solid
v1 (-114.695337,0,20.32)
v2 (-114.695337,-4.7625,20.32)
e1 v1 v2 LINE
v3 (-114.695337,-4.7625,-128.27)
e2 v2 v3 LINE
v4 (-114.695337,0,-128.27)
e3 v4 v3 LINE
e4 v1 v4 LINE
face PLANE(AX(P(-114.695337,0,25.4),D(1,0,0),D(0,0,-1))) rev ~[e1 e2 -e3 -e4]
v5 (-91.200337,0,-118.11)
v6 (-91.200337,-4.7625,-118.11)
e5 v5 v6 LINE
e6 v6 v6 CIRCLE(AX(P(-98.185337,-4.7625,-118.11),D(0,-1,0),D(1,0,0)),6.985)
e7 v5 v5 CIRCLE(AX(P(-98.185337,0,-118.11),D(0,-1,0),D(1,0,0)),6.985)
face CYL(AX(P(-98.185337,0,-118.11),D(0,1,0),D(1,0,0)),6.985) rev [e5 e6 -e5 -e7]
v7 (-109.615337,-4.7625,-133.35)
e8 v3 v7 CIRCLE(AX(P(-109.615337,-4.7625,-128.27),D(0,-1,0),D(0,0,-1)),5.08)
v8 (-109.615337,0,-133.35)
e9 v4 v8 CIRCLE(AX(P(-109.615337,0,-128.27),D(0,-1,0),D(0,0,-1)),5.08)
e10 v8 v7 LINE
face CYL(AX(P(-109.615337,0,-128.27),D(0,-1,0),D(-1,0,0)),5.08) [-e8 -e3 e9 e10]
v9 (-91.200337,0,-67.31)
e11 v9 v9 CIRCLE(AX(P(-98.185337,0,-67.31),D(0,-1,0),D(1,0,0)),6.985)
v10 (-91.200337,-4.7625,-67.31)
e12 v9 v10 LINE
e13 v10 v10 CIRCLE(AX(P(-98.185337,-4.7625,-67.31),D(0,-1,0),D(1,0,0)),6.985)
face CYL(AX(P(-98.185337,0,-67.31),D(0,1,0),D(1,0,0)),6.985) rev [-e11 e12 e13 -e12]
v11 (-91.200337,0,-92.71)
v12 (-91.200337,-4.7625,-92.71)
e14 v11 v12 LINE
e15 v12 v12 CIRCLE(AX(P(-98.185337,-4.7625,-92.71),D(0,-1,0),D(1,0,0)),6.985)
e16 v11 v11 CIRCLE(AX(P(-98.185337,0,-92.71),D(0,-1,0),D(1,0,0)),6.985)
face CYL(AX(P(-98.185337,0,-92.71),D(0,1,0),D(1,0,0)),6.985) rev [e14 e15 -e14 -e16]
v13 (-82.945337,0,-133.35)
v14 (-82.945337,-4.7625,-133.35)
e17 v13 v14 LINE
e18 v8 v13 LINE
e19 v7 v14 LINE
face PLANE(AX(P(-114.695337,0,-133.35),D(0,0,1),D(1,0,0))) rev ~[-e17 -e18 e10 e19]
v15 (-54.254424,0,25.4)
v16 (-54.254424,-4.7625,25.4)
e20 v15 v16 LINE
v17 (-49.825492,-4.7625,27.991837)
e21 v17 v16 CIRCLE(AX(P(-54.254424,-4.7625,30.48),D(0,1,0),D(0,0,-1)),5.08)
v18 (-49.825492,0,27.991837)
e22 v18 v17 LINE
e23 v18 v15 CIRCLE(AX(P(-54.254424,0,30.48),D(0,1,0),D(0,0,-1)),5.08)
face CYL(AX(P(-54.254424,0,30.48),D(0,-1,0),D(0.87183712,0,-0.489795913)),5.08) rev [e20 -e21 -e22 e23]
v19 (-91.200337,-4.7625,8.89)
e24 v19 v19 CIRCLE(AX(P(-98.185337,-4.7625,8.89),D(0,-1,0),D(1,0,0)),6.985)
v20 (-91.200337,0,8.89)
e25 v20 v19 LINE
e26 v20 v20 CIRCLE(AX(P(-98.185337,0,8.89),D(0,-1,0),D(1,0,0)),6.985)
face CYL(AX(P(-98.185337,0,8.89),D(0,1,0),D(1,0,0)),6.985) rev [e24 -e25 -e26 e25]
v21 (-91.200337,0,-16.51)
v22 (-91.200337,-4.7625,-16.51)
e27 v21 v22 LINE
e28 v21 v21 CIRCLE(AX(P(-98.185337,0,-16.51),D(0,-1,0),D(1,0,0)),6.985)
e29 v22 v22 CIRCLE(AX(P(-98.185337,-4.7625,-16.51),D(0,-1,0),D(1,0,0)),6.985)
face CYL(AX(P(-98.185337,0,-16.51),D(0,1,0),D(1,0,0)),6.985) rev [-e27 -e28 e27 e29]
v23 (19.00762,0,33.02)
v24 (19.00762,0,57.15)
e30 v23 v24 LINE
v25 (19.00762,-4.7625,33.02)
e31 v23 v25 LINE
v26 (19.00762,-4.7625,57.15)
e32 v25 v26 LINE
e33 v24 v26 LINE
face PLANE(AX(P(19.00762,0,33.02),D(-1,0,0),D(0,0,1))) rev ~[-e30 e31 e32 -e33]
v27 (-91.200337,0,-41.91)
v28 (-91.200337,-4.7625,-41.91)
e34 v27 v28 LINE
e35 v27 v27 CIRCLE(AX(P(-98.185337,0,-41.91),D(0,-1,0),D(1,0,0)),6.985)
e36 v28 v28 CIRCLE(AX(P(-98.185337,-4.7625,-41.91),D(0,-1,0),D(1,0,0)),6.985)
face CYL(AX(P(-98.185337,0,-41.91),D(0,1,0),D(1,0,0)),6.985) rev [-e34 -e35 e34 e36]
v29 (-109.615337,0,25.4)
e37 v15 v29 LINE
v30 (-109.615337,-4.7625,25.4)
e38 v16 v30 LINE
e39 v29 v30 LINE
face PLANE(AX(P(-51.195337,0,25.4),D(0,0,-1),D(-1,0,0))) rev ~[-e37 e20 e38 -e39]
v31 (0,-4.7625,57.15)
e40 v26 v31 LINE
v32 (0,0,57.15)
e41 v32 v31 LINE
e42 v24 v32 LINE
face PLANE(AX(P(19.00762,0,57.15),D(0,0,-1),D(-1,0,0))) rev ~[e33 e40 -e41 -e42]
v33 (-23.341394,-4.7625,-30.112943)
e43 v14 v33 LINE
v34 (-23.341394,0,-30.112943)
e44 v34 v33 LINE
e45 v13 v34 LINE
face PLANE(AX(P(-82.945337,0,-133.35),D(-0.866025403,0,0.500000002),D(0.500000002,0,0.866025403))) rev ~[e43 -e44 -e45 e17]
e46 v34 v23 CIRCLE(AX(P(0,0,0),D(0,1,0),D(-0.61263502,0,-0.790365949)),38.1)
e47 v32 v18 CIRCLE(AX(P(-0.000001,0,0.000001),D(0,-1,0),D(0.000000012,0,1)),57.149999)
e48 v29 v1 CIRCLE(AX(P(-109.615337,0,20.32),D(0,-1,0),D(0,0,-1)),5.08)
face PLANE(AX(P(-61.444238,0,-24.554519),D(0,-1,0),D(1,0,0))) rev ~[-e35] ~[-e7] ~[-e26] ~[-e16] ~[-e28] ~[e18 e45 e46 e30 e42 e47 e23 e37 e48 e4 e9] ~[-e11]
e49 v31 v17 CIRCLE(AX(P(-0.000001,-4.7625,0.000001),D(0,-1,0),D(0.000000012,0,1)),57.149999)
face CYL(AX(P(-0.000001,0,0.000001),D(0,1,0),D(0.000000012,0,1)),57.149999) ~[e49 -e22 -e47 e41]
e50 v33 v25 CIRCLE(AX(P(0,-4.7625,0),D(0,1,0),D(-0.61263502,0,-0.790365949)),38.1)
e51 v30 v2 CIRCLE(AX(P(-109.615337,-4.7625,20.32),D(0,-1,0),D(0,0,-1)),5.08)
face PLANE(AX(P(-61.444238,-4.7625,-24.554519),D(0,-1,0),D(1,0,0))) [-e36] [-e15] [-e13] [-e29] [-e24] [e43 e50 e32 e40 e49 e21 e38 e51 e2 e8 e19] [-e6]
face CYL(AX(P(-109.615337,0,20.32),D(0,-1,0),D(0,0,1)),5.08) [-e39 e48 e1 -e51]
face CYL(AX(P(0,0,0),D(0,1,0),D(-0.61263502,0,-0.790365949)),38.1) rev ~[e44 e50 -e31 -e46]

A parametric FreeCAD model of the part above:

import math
import FreeCAD as App
import Part
import Sketcher
Q = App.Units.Quantity


def edges_at(feature, points):
    """Names of the edges that pass closest to the given points."""
    edges = feature.Shape.Edges
    near = lambda p: min(range(len(edges)), key=lambda i: edges[i].distToShape(Part.Vertex(*p))[0])
    return sorted({f"Edge{near(p) + 1}" for p in points})

doc = App.newDocument("Part")
body = doc.addObject("PartDesign::Body", "Body")

# Sketch on XZ plane
sketch1 = body.newObject("Sketcher::SketchObject", "Sketch")
sketch1.AttachmentSupport = (doc.getObject("XZ_Plane"), [""])
sketch1.MapMode = "FlatFace"
sketch1.addGeometry(Part.LineSegment(App.Vector(19, 57, 0), App.Vector(0, 57, 0)), False)
sketch1.addGeometry(Part.ArcOfCircle(Part.Circle(App.Vector(0, 0, 0), App.Vector(0, 0, 1), 57), math.radians(90), math.radians(154)), False)
sketch1.addGeometry(Part.LineSegment(App.Vector(-51, 25, 0), App.Vector(-115, 25, 0)), False)
sketch1.addGeometry(Part.LineSegment(App.Vector(-115, 25, 0), App.Vector(-115, -133, 0)), False)
sketch1.addGeometry(Part.LineSegment(App.Vector(-115, -133, 0), App.Vector(-83, -133, 0)), False)
sketch1.addGeometry(Part.LineSegment(App.Vector(-83, -133, 0), App.Vector(-23, -30, 0)), False)
sketch1.addGeometry(Part.ArcOfCircle(Part.Circle(App.Vector(0, 0, 0), App.Vector(0, 0, 1), 38), math.radians(60), math.radians(232)), False)
sketch1.addGeometry(Part.LineSegment(App.Vector(19, 33, 0), App.Vector(19, 57, 0)), False)
sketch1.addGeometry(Part.Circle(App.Vector(-98, -118, 0), App.Vector(0, 0, 1), 7), False)
sketch1.addGeometry(Part.Circle(App.Vector(-98, -93, 0), App.Vector(0, 0, 1), 7), False)
sketch1.addGeometry(Part.Circle(App.Vector(-98, -67, 0), App.Vector(0, 0, 1), 7), False)
sketch1.addGeometry(Part.Circle(App.Vector(-98, -42, 0), App.Vector(0, 0, 1), 7), False)
sketch1.addGeometry(Part.Circle(App.Vector(-98, -17, 0), App.Vector(0, 0, 1), 7), False)
sketch1.addGeometry(Part.Circle(App.Vector(-98, 9, 0), App.Vector(0, 0, 1), 7), False)
sketch1.addConstraint(Sketcher.Constraint("Tangent", 0, 2, 1, 1))
sketch1.addConstraint(Sketcher.Constraint("Coincident", 1, 2, 2, 1))
sketch1.addConstraint(Sketcher.Constraint("Coincident", 2, 2, 3, 1))
sketch1.addConstraint(Sketcher.Constraint("Coincident", 3, 2, 4, 1))
sketch1.addConstraint(Sketcher.Constraint("Coincident", 4, 2, 5, 1))
sketch1.addConstraint(Sketcher.Constraint("Coincident", 5, 2, 6, 2))
sketch1.addConstraint(Sketcher.Constraint("Coincident", 6, 1, 7, 1))
sketch1.addConstraint(Sketcher.Constraint("Coincident", 7, 2, 0, 1))
sketch1.addConstraint(Sketcher.Constraint("Horizontal", 0))
sketch1.addConstraint(Sketcher.Constraint("Horizontal", 2))
sketch1.addConstraint(Sketcher.Constraint("Vertical", 3))
sketch1.addConstraint(Sketcher.Constraint("Horizontal", 4))
sketch1.addConstraint(Sketcher.Constraint("Vertical", 7))
sketch1.addConstraint(Sketcher.Constraint("Coincident", 1, 3, -1, 1))
sketch1.addConstraint(Sketcher.Constraint("Coincident", 6, 3, -1, 1))
sketch1.addConstraint(Sketcher.Constraint("Equal", 8, 9))
sketch1.addConstraint(Sketcher.Constraint("Equal", 9, 10))
sketch1.addConstraint(Sketcher.Constraint("Equal", 10, 11))
sketch1.addConstraint(Sketcher.Constraint("Equal", 11, 12))
sketch1.addConstraint(Sketcher.Constraint("Equal", 12, 13))
sketch1.addConstraint(Sketcher.Constraint("Vertical", 8, 3, 9, 3))
sketch1.addConstraint(Sketcher.Constraint("Vertical", 9, 3, 10, 3))
sketch1.addConstraint(Sketcher.Constraint("Vertical", 10, 3, 11, 3))
sketch1.addConstraint(Sketcher.Constraint("Vertical", 11, 3, 12, 3))
sketch1.addConstraint(Sketcher.Constraint("Vertical", 12, 3, 13, 3))
sketch1.addConstraint(Sketcher.Constraint("Radius", 6, Q("1.5 in")))
sketch1.addConstraint(Sketcher.Constraint("Diameter", 8, Q("0.55 in")))
sketch1.addConstraint(Sketcher.Constraint("Radius", 1, Q("2.25 in")))
sketch1.addConstraint(Sketcher.Constraint("DistanceX", 2, 2, 2, 1, Q("2.5 in")))
sketch1.addConstraint(Sketcher.Constraint("DistanceY", -1, 1, 1, 2, Q("1 in")))
sketch1.addConstraint(Sketcher.Constraint("Angle", 5, Q("60 deg")))
sketch1.addConstraint(Sketcher.Constraint("DistanceY", 8, 3, 9, 3, Q("1 in")))
sketch1.addConstraint(Sketcher.Constraint("DistanceY", 9, 3, 10, 3, Q("1 in")))
sketch1.addConstraint(Sketcher.Constraint("DistanceY", 10, 3, 11, 3, Q("1 in")))
sketch1.addConstraint(Sketcher.Constraint("DistanceY", 11, 3, 12, 3, Q("1 in")))
sketch1.addConstraint(Sketcher.Constraint("DistanceY", 12, 3, 13, 3, Q("1 in")))
sketch1.addConstraint(Sketcher.Constraint("DistanceX", 4, 1, 4, 2, Q("1.25 in")))
sketch1.addConstraint(Sketcher.Constraint("DistanceY", 3, 2, 3, 1, Q("6.25 in")))
sketch1.addConstraint(Sketcher.Constraint("DistanceY", 7, 1, 7, 2, Q("0.95 in")))
sketch1.addConstraint(Sketcher.Constraint("DistanceY", 13, 3, 0, 2, Q("1.9 in")))
sketch1.addConstraint(Sketcher.Constraint("DistanceX", 8, 3, 4, 2, Q("0.6 in")))
pad1 = body.newObject("PartDesign::Pad", "Pad")
pad1.Profile = sketch1
pad1.Length = Q("0.1875 in")
doc.recompute()

fillet = body.newObject("PartDesign::Fillet", "Fillet")
fillet.Base = (pad1, edges_at(pad1, [(-51.195, -2.381, 25.4), (-114.695, -2.381, -133.35), (-114.695, -2.381, 25.4)]))
fillet.Radius = Q("0.2 in")

doc.recompute()
